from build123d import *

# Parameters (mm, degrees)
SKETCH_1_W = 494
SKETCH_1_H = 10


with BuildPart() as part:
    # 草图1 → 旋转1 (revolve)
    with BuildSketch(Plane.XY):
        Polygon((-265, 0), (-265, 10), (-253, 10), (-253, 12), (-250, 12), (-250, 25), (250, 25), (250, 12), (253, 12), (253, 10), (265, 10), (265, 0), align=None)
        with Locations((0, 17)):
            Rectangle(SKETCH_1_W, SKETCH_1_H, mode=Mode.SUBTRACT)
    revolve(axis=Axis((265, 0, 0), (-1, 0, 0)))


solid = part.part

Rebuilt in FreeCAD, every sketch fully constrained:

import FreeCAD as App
import Part
import Sketcher
Q = App.Units.Quantity


def add_polygon(sketch, points):
    """Adds a closed chain of lines whose ends are joined by coincident constraints."""
    first, n = sketch.GeometryCount, len(points)
    for a, b in zip(points, points[1:] + points[:1]):
        sketch.addGeometry(Part.LineSegment(App.Vector(*a, 0), App.Vector(*b, 0)), False)
    for i in range(n):
        sketch.addConstraint(Sketcher.Constraint("Coincident", first + i, 2, first + (i + 1) % n, 1))

doc = App.newDocument("Part")
body = doc.addObject("PartDesign::Body", "Body")

# Sketch on XY plane
sketch1 = doc.addObject("Sketcher::SketchObject", "Sketch")
body.addObject(sketch1)
sketch1.AttachmentSupport = (doc.XY_Plane, [""])
sketch1.MapMode = "FlatFace"
add_polygon(sketch1, [(-265, 10), (-265, 0), (265, 0), (265, 10), (253, 10), (253, 12), (250, 12), (250, 25), (-250, 25), (-250, 12), (-253, 12), (-253, 10)])  # lines 0-11
add_polygon(sketch1, [(-247, 12), (-247, 22), (247, 22), (247, 12)])  # lines 12-15
sketch1.addConstraint(Sketcher.Constraint("Vertical", 0))
sketch1.addConstraint(Sketcher.Constraint("Horizontal", 1))
sketch1.addConstraint(Sketcher.Constraint("Vertical", 2))
sketch1.addConstraint(Sketcher.Constraint("Horizontal", 3))
sketch1.addConstraint(Sketcher.Constraint("Vertical", 4))
sketch1.addConstraint(Sketcher.Constraint("Horizontal", 5))
sketch1.addConstraint(Sketcher.Constraint("Vertical", 6))
sketch1.addConstraint(Sketcher.Constraint("Horizontal", 7))
sketch1.addConstraint(Sketcher.Constraint("Vertical", 8))
sketch1.addConstraint(Sketcher.Constraint("Horizontal", 9))
sketch1.addConstraint(Sketcher.Constraint("Vertical", 10))
sketch1.addConstraint(Sketcher.Constraint("Horizontal", 11))
sketch1.addConstraint(Sketcher.Constraint("Vertical", 12))
sketch1.addConstraint(Sketcher.Constraint("Horizontal", 13))
sketch1.addConstraint(Sketcher.Constraint("Vertical", 14))
sketch1.addConstraint(Sketcher.Constraint("Horizontal", 15))
sketch1.addConstraint(Sketcher.Constraint("Symmetric", 0, 2, 1, 2, -1, 1))
sketch1.addConstraint(Sketcher.Constraint("Symmetric", 5, 2, 8, 2, -2))
sketch1.addConstraint(Sketcher.Constraint("Symmetric", 3, 2, 10, 2, -2))
sketch1.addConstraint(Sketcher.Constraint("Horizontal", 9, 2, 14, 2))
sketch1.addConstraint(Sketcher.Constraint("Equal", 2, 12))
sketch1.addConstraint(Sketcher.Constraint("DistanceX", 1, 1, 1, 2, Q("530 mm")))
sketch1.addConstraint(Sketcher.Constraint("DistanceX", 3, 2, 3, 1, Q("12 mm")))
sketch1.addConstraint(Sketcher.Constraint("DistanceX", 5, 2, 5, 1, Q("3 mm")))
sketch1.addConstraint(Sketcher.Constraint("DistanceX", 13, 1, 13, 2, Q("494 mm")))
sketch1.addConstraint(Sketcher.Constraint("DistanceY", 0, 2, 0, 1, Q("10 mm")))
sketch1.addConstraint(Sketcher.Constraint("DistanceY", 4, 1, 4, 2, Q("2 mm")))
sketch1.addConstraint(Sketcher.Constraint("DistanceY", 6, 1, 6, 2, Q("13 mm")))
sketch1.addConstraint(Sketcher.Constraint("DistanceX", 12, 2, -1, 1, Q("247 mm")))
revolution = doc.addObject("PartDesign::Revolution", "Revolution")
body.addObject(revolution)
revolution.Profile = sketch1
revolution.ReferenceAxis = (sketch1, ["H_Axis"])
revolution.Angle = 360

doc.recompute()
